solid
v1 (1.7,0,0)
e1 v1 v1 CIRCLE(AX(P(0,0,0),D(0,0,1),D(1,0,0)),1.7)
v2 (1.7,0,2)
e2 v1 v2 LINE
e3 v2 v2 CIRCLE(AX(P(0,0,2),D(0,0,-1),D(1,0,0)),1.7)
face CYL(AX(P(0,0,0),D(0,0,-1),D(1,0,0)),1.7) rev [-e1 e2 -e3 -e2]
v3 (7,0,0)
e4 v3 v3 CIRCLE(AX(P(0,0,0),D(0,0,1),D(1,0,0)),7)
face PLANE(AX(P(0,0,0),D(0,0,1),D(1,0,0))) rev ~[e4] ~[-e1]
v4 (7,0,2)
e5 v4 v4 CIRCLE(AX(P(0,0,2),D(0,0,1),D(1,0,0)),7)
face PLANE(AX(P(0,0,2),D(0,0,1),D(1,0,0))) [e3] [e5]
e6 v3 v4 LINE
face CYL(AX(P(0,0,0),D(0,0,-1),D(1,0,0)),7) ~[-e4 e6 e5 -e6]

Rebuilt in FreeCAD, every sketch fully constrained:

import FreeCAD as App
import Part
import Sketcher

V = App.Vector

doc = App.newDocument("Part")
body = doc.addObject("PartDesign::Body", "Body")

sketch1 = body.newObject("Sketcher::SketchObject", "Sketch")
sketch1.AttachmentSupport = (doc.getObject("XY_Plane"), [""])
sketch1.MapMode = "FlatFace"
sketch1.addGeometry(Part.Circle(V(0, 0, 0), V(0, 0, 1), 7), False)
sketch1.addConstraint([
    Sketcher.Constraint("Coincident", 0, 3, -1, 1),
    Sketcher.Constraint("Diameter", 0, 14.0),
])
pad1 = body.newObject("PartDesign::Pad", "Pad")
pad1.Profile = sketch1
pad1.Length = 2

sketch2 = body.newObject("Sketcher::SketchObject", "Sketch001")
sketch2.AttachmentSupport = (doc.getObject("XY_Plane"), [""])
sketch2.MapMode = "FlatFace"
sketch2.addGeometry(Part.Circle(V(0, 0, 0), V(0, 0, 1), 1.7), False)
sketch2.addConstraint([
    Sketcher.Constraint("Coincident", 0, 3, -1, 1),
    Sketcher.Constraint("Diameter", 0, 3.4),
])
pocket1 = body.newObject("PartDesign::Pocket", "Pocket")
pocket1.Profile = sketch2
pocket1.Length = 22.284
pocket1.Midplane = True

doc.recompute()
